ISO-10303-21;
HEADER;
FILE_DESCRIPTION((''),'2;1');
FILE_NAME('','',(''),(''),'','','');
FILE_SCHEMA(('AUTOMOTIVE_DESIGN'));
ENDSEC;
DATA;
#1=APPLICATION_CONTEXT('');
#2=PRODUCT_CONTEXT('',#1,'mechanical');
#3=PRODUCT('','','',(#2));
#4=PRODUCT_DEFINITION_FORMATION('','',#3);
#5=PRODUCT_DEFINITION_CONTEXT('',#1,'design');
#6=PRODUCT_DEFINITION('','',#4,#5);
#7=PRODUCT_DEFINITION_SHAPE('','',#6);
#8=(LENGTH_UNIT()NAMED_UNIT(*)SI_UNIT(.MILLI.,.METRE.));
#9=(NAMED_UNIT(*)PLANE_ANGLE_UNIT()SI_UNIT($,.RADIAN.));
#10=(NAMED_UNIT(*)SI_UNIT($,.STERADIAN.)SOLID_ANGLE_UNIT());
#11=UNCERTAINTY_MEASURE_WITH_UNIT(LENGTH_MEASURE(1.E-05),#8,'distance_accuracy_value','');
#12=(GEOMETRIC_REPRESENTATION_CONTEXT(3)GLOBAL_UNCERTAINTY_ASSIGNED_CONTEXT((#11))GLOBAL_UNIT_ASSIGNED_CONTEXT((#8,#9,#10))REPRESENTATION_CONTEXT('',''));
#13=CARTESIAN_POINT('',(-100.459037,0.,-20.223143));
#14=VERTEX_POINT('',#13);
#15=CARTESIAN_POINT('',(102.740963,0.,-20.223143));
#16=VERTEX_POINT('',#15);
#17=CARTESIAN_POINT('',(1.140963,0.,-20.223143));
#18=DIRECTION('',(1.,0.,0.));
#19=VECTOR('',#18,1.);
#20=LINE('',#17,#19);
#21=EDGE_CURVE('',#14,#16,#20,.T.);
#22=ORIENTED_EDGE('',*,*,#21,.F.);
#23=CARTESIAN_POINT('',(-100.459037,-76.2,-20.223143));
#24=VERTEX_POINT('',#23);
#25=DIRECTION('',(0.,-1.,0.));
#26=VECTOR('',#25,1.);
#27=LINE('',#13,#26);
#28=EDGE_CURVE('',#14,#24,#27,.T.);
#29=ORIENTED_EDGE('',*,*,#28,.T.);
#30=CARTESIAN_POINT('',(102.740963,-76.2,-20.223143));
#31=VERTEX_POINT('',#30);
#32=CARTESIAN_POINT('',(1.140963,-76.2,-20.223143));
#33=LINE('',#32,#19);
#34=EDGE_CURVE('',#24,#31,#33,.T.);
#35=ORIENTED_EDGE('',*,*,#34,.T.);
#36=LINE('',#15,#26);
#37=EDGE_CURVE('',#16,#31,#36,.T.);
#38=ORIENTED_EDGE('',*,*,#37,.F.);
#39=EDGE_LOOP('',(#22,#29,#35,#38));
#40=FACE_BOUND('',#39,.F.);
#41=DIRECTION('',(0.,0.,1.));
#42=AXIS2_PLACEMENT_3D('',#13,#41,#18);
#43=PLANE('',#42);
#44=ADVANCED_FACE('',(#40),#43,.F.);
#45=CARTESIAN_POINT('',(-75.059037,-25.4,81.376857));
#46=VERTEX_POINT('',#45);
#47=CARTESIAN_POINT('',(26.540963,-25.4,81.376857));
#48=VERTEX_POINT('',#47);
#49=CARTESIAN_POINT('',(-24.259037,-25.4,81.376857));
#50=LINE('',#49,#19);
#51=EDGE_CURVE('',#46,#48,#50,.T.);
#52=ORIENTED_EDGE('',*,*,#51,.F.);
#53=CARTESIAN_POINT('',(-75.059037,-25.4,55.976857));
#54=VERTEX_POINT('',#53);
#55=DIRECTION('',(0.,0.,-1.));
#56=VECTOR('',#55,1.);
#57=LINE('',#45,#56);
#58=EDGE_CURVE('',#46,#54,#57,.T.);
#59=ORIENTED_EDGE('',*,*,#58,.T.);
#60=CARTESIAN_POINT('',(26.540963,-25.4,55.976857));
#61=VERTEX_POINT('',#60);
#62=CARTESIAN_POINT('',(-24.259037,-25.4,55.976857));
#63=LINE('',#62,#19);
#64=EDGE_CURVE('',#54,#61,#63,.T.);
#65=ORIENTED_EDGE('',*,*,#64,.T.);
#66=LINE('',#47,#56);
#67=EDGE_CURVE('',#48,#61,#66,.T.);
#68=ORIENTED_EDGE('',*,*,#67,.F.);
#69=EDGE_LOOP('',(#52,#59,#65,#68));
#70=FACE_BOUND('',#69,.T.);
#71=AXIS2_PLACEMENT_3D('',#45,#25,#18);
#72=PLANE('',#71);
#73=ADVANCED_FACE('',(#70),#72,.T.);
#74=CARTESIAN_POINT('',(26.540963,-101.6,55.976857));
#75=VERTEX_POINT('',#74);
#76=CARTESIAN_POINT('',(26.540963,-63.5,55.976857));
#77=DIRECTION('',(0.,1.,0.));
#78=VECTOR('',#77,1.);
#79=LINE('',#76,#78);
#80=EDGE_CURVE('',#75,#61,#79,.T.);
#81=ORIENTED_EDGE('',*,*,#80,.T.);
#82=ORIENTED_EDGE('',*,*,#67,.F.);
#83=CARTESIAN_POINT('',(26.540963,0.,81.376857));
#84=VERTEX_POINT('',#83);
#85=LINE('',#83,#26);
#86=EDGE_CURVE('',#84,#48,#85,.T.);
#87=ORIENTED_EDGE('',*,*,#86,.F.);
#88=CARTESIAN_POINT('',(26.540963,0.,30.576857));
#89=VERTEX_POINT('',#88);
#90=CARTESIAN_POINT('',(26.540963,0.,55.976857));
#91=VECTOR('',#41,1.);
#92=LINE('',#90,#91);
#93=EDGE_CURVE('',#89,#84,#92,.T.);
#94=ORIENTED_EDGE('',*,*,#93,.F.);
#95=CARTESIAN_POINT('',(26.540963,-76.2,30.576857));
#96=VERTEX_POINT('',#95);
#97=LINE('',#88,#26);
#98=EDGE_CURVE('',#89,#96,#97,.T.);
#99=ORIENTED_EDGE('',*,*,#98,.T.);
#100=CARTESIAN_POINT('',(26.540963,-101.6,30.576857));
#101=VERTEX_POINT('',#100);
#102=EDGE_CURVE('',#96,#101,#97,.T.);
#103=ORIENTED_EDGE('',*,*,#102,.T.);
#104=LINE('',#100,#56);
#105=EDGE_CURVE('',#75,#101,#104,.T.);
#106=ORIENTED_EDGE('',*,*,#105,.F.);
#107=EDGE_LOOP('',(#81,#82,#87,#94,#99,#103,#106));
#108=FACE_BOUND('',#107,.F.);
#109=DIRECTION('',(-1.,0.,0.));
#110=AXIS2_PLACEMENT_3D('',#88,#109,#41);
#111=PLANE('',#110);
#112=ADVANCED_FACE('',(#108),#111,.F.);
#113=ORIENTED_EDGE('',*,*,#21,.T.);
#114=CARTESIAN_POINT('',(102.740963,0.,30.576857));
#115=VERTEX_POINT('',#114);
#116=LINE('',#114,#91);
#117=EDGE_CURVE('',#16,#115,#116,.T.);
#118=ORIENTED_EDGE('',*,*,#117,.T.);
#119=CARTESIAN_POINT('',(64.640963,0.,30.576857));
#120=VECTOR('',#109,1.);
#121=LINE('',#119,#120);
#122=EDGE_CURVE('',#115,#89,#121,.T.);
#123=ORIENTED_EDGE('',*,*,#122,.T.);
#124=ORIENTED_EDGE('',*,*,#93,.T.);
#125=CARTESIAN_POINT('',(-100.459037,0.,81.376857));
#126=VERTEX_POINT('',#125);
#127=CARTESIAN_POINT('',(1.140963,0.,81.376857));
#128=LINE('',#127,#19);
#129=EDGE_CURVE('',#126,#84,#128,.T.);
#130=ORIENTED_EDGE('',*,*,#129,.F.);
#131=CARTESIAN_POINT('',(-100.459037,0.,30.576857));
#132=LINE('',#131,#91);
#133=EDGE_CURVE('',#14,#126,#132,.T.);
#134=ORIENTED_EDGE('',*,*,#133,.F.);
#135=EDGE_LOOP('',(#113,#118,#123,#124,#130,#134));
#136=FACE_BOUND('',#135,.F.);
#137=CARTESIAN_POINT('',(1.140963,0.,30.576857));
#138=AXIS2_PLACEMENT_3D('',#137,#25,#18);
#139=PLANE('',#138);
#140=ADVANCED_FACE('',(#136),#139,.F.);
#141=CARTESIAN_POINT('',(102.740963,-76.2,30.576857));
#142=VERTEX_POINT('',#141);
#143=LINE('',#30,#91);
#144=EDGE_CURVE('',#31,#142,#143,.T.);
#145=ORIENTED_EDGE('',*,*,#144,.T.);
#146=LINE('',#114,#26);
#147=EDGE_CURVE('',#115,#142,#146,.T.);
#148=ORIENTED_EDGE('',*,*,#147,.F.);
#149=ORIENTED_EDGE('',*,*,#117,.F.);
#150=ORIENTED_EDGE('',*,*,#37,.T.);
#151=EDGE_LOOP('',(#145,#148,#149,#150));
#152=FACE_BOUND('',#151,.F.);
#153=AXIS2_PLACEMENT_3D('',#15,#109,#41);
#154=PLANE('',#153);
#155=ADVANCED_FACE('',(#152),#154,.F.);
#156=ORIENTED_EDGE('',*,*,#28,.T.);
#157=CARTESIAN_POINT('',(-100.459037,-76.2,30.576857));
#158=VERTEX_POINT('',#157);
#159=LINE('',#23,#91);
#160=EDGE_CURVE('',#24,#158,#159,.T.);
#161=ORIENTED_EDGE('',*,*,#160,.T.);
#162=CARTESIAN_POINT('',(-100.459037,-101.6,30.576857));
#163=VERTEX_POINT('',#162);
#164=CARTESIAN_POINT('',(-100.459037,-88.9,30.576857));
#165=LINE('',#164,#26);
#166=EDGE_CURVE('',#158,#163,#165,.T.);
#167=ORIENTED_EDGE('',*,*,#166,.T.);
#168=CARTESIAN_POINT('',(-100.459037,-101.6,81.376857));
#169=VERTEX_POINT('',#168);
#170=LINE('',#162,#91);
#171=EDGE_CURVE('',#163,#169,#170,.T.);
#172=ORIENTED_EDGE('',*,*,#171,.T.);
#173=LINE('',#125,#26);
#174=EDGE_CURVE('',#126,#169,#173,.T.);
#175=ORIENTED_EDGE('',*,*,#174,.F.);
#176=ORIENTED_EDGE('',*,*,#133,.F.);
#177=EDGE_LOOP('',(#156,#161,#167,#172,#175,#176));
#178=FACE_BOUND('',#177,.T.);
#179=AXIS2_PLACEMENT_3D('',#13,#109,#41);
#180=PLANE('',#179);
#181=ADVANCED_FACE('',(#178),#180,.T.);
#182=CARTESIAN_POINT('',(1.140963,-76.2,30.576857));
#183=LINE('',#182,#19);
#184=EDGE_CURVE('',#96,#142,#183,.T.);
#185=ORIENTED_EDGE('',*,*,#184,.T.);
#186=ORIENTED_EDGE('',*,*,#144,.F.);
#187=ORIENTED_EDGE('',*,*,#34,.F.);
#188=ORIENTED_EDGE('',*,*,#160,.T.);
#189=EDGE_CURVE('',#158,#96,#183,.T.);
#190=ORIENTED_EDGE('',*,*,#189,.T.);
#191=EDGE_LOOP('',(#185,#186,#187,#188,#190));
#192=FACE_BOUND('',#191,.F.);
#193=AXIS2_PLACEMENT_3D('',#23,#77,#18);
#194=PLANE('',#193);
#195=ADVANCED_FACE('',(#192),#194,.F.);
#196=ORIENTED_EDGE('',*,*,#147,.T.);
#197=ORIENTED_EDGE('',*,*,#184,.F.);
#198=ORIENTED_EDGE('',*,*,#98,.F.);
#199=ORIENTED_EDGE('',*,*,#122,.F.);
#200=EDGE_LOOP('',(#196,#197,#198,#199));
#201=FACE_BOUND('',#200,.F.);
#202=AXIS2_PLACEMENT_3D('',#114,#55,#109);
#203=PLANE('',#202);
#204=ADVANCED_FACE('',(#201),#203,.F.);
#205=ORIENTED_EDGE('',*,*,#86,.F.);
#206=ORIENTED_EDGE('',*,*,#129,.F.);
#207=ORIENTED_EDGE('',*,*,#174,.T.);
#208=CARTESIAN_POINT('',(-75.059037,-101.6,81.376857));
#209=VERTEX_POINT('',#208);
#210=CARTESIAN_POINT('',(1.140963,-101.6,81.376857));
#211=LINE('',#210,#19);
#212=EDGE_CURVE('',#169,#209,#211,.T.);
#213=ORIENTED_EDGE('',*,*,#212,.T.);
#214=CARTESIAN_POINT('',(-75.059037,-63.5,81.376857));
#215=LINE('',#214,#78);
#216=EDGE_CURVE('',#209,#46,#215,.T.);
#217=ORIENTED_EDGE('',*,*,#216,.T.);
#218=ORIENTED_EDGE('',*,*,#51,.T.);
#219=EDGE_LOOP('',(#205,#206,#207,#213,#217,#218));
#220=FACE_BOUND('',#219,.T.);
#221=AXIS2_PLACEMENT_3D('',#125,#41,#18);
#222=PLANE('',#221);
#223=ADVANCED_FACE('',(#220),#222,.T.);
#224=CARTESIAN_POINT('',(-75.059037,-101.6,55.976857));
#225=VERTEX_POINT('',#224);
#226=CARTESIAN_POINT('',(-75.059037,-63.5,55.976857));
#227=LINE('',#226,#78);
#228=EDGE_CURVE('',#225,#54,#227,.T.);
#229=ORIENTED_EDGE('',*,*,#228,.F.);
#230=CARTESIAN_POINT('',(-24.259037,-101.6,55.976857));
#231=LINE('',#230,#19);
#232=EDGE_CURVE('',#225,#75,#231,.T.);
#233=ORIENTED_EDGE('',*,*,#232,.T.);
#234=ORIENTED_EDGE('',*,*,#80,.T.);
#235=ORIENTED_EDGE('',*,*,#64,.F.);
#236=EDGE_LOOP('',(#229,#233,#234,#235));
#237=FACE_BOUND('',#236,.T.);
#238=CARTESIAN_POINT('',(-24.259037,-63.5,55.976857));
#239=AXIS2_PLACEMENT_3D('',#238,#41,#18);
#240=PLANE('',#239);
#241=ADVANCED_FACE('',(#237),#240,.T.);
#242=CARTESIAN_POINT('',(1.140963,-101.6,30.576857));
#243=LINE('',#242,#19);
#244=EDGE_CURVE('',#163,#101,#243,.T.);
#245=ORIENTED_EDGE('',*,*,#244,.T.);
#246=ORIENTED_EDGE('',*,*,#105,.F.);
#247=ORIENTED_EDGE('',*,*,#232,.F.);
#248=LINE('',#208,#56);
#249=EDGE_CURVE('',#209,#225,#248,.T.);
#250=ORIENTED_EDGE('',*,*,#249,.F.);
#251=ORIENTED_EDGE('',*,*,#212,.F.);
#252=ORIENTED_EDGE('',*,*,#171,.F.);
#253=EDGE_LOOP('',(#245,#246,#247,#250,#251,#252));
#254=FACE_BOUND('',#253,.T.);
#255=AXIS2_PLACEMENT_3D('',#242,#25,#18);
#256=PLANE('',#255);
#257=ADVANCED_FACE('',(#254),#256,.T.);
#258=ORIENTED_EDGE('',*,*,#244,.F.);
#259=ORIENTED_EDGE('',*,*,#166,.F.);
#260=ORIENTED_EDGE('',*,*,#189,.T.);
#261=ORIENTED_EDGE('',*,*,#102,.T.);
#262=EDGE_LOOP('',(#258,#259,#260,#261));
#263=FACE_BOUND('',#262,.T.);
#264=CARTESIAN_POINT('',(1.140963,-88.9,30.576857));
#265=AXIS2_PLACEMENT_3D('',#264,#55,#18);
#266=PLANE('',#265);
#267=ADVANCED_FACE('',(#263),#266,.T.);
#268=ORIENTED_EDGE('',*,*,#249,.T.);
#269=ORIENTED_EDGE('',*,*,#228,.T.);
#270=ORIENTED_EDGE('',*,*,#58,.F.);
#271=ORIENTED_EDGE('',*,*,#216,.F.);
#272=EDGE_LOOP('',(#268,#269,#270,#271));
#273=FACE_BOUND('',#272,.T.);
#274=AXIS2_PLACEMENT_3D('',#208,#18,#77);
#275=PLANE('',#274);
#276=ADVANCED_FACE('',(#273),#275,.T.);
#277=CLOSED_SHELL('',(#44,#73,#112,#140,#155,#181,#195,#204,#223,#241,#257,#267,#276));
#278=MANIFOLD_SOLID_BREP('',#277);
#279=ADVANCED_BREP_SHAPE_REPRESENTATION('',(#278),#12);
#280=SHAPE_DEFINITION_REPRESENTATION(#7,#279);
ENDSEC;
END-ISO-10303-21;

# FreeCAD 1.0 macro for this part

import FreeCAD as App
import Part
import Sketcher

V = App.Vector
Q = App.Units.Quantity


def add_polygon(sketch, points):
    """Adds a closed chain of lines whose ends are joined by coincident constraints."""
    first, n = sketch.GeometryCount, len(points)
    for a, b in zip(points, points[1:] + points[:1]):
        sketch.addGeometry(Part.LineSegment(App.Vector(*a, 0), App.Vector(*b, 0)), False)
    for i in range(n):
        sketch.addConstraint(Sketcher.Constraint("Coincident", first + i, 2, first + (i + 1) % n, 1))

doc = App.newDocument("Part")
params = doc.addObject("Spreadsheet::Sheet", "Params")
for row, (alias, value) in enumerate([
    ("sketch1_width", "8 in"),
    ("sketch1_height", "4 in"),
    ("pad1_length", "4 in"),
    ("sketch2_width", "8 in"),
    ("sketch2_height", "1 in"),
    ("pocket1_length", "2 in"),
    ("sketch3_width", "3 in"),
    ("sketch3_height", "2 in"),
    ("sketch4_width", "4 in"),
    ("sketch4_height", "3 in"),
    ("pocket3_length", "1 in"),
], start=1):
    params.set(f"A{row}", alias)
    params.set(f"B{row}", "=" + value)
    params.setAlias(f"B{row}", alias)

body = doc.addObject("PartDesign::Body", "Body")

# Sketch on XZ plane
sketch1 = body.newObject("Sketcher::SketchObject", "Sketch")
sketch1.AttachmentSupport = (doc.getObject("XZ_Plane"), [""])
sketch1.MapMode = "FlatFace"
add_polygon(sketch1, [(-100, 81), (-100, -20), (103, -20), (103, 81)])  # lines 0-3
sketch1.addConstraint(Sketcher.Constraint("Vertical", 0))
sketch1.addConstraint(Sketcher.Constraint("Horizontal", 1))
sketch1.addConstraint(Sketcher.Constraint("Vertical", 2))
sketch1.addConstraint(Sketcher.Constraint("Horizontal", 3))
sketch1.addConstraint(Sketcher.Constraint("DistanceX", 1, 1, 1, 2, Q("8 in")))
sketch1.addConstraint(Sketcher.Constraint("DistanceY", 0, 2, 0, 1, Q("4 in")))
sketch1.addConstraint(Sketcher.Constraint("DistanceX", 0, 2, -1, 1, Q("100.459037 mm")))
sketch1.addConstraint(Sketcher.Constraint("DistanceY", 0, 2, -1, 1, Q("20.223143 mm")))
sketch1.setExpression("Constraints[8]", "Params.sketch1_width")
sketch1.setExpression("Constraints[9]", "Params.sketch1_height")
pad1 = body.newObject("PartDesign::Pad", "Pad")
pad1.Profile = sketch1
pad1.setExpression("Length", "Params.pad1_length")

# Sketch on XY plane
sketch2 = body.newObject("Sketcher::SketchObject", "Sketch001")
sketch2.AttachmentSupport = (doc.getObject("XY_Plane"), [""])
sketch2.MapMode = "FlatFace"
sketch2.AttachmentOffset = App.Placement(V(0, 0, -20.223143), App.Rotation())
add_polygon(sketch2, [(-100, -102), (-100, -76), (103, -76), (103, -102)])  # lines 0-3
sketch2.addConstraint(Sketcher.Constraint("Vertical", 0))
sketch2.addConstraint(Sketcher.Constraint("Horizontal", 1))
sketch2.addConstraint(Sketcher.Constraint("Vertical", 2))
sketch2.addConstraint(Sketcher.Constraint("Horizontal", 3))
sketch2.addConstraint(Sketcher.Constraint("DistanceX", 1, 1, 1, 2, Q("8 in")))
sketch2.addConstraint(Sketcher.Constraint("DistanceY", 0, 1, 0, 2, Q("1 in")))
sketch2.addConstraint(Sketcher.Constraint("DistanceY", 0, 2, -1, 1, Q("3 in")))
sketch2.addConstraint(Sketcher.Constraint("DistanceX", 0, 2, -1, 1, Q("100.459037 mm")))
sketch2.setExpression("Constraints[8]", "Params.sketch2_width")
sketch2.setExpression("Constraints[9]", "Params.sketch2_height")
pocket1 = body.newObject("PartDesign::Pocket", "Pocket")
pocket1.Profile = sketch2
pocket1.setExpression("Length", "Params.pocket1_length")
pocket1.Reversed = True

# Sketch on XZ plane
sketch3 = body.newObject("Sketcher::SketchObject", "Sketch002")
sketch3.AttachmentSupport = (doc.getObject("XZ_Plane"), [""])
sketch3.MapMode = "FlatFace"
add_polygon(sketch3, [(103, 81), (103, 31), (27, 31), (27, 81)])  # lines 0-3
sketch3.addConstraint(Sketcher.Constraint("Vertical", 0))
sketch3.addConstraint(Sketcher.Constraint("Horizontal", 1))
sketch3.addConstraint(Sketcher.Constraint("Vertical", 2))
sketch3.addConstraint(Sketcher.Constraint("Horizontal", 3))
sketch3.addConstraint(Sketcher.Constraint("DistanceX", 1, 2, 1, 1, Q("3 in")))
sketch3.addConstraint(Sketcher.Constraint("DistanceY", 0, 2, 0, 1, Q("2 in")))
sketch3.addConstraint(Sketcher.Constraint("DistanceX", -1, 1, 0, 2, Q("102.740963 mm")))
sketch3.addConstraint(Sketcher.Constraint("DistanceY", -1, 1, 0, 2, Q("30.576857 mm")))
sketch3.setExpression("Constraints[8]", "Params.sketch3_width")
sketch3.setExpression("Constraints[9]", "Params.sketch3_height")
pocket2 = body.newObject("PartDesign::Pocket", "Pocket001")
pocket2.Profile = sketch3
pocket2.Type = "ThroughAll"
pocket2.Reversed = True

# Sketch on XY plane
sketch4 = body.newObject("Sketcher::SketchObject", "Sketch003")
sketch4.AttachmentSupport = (doc.getObject("XY_Plane"), [""])
sketch4.MapMode = "FlatFace"
sketch4.AttachmentOffset = App.Placement(V(0, 0, 81.376857), App.Rotation())
add_polygon(sketch4, [(-75, -25), (-75, -102), (27, -102), (27, -25)])  # lines 0-3
sketch4.addConstraint(Sketcher.Constraint("Vertical", 0))
sketch4.addConstraint(Sketcher.Constraint("Horizontal", 1))
sketch4.addConstraint(Sketcher.Constraint("Vertical", 2))
sketch4.addConstraint(Sketcher.Constraint("Horizontal", 3))
sketch4.addConstraint(Sketcher.Constraint("DistanceX", 1, 1, 1, 2, Q("4 in")))
sketch4.addConstraint(Sketcher.Constraint("DistanceY", 0, 2, 0, 1, Q("3 in")))
sketch4.addConstraint(Sketcher.Constraint("DistanceY", 0, 2, -1, 1, Q("4 in")))
sketch4.addConstraint(Sketcher.Constraint("DistanceX", 0, 2, -1, 1, Q("75.059037 mm")))
sketch4.setExpression("Constraints[8]", "Params.sketch4_width")
sketch4.setExpression("Constraints[9]", "Params.sketch4_height")
pocket3 = body.newObject("PartDesign::Pocket", "Pocket002")
pocket3.Profile = sketch4
pocket3.setExpression("Length", "Params.pocket3_length")

doc.recompute()
